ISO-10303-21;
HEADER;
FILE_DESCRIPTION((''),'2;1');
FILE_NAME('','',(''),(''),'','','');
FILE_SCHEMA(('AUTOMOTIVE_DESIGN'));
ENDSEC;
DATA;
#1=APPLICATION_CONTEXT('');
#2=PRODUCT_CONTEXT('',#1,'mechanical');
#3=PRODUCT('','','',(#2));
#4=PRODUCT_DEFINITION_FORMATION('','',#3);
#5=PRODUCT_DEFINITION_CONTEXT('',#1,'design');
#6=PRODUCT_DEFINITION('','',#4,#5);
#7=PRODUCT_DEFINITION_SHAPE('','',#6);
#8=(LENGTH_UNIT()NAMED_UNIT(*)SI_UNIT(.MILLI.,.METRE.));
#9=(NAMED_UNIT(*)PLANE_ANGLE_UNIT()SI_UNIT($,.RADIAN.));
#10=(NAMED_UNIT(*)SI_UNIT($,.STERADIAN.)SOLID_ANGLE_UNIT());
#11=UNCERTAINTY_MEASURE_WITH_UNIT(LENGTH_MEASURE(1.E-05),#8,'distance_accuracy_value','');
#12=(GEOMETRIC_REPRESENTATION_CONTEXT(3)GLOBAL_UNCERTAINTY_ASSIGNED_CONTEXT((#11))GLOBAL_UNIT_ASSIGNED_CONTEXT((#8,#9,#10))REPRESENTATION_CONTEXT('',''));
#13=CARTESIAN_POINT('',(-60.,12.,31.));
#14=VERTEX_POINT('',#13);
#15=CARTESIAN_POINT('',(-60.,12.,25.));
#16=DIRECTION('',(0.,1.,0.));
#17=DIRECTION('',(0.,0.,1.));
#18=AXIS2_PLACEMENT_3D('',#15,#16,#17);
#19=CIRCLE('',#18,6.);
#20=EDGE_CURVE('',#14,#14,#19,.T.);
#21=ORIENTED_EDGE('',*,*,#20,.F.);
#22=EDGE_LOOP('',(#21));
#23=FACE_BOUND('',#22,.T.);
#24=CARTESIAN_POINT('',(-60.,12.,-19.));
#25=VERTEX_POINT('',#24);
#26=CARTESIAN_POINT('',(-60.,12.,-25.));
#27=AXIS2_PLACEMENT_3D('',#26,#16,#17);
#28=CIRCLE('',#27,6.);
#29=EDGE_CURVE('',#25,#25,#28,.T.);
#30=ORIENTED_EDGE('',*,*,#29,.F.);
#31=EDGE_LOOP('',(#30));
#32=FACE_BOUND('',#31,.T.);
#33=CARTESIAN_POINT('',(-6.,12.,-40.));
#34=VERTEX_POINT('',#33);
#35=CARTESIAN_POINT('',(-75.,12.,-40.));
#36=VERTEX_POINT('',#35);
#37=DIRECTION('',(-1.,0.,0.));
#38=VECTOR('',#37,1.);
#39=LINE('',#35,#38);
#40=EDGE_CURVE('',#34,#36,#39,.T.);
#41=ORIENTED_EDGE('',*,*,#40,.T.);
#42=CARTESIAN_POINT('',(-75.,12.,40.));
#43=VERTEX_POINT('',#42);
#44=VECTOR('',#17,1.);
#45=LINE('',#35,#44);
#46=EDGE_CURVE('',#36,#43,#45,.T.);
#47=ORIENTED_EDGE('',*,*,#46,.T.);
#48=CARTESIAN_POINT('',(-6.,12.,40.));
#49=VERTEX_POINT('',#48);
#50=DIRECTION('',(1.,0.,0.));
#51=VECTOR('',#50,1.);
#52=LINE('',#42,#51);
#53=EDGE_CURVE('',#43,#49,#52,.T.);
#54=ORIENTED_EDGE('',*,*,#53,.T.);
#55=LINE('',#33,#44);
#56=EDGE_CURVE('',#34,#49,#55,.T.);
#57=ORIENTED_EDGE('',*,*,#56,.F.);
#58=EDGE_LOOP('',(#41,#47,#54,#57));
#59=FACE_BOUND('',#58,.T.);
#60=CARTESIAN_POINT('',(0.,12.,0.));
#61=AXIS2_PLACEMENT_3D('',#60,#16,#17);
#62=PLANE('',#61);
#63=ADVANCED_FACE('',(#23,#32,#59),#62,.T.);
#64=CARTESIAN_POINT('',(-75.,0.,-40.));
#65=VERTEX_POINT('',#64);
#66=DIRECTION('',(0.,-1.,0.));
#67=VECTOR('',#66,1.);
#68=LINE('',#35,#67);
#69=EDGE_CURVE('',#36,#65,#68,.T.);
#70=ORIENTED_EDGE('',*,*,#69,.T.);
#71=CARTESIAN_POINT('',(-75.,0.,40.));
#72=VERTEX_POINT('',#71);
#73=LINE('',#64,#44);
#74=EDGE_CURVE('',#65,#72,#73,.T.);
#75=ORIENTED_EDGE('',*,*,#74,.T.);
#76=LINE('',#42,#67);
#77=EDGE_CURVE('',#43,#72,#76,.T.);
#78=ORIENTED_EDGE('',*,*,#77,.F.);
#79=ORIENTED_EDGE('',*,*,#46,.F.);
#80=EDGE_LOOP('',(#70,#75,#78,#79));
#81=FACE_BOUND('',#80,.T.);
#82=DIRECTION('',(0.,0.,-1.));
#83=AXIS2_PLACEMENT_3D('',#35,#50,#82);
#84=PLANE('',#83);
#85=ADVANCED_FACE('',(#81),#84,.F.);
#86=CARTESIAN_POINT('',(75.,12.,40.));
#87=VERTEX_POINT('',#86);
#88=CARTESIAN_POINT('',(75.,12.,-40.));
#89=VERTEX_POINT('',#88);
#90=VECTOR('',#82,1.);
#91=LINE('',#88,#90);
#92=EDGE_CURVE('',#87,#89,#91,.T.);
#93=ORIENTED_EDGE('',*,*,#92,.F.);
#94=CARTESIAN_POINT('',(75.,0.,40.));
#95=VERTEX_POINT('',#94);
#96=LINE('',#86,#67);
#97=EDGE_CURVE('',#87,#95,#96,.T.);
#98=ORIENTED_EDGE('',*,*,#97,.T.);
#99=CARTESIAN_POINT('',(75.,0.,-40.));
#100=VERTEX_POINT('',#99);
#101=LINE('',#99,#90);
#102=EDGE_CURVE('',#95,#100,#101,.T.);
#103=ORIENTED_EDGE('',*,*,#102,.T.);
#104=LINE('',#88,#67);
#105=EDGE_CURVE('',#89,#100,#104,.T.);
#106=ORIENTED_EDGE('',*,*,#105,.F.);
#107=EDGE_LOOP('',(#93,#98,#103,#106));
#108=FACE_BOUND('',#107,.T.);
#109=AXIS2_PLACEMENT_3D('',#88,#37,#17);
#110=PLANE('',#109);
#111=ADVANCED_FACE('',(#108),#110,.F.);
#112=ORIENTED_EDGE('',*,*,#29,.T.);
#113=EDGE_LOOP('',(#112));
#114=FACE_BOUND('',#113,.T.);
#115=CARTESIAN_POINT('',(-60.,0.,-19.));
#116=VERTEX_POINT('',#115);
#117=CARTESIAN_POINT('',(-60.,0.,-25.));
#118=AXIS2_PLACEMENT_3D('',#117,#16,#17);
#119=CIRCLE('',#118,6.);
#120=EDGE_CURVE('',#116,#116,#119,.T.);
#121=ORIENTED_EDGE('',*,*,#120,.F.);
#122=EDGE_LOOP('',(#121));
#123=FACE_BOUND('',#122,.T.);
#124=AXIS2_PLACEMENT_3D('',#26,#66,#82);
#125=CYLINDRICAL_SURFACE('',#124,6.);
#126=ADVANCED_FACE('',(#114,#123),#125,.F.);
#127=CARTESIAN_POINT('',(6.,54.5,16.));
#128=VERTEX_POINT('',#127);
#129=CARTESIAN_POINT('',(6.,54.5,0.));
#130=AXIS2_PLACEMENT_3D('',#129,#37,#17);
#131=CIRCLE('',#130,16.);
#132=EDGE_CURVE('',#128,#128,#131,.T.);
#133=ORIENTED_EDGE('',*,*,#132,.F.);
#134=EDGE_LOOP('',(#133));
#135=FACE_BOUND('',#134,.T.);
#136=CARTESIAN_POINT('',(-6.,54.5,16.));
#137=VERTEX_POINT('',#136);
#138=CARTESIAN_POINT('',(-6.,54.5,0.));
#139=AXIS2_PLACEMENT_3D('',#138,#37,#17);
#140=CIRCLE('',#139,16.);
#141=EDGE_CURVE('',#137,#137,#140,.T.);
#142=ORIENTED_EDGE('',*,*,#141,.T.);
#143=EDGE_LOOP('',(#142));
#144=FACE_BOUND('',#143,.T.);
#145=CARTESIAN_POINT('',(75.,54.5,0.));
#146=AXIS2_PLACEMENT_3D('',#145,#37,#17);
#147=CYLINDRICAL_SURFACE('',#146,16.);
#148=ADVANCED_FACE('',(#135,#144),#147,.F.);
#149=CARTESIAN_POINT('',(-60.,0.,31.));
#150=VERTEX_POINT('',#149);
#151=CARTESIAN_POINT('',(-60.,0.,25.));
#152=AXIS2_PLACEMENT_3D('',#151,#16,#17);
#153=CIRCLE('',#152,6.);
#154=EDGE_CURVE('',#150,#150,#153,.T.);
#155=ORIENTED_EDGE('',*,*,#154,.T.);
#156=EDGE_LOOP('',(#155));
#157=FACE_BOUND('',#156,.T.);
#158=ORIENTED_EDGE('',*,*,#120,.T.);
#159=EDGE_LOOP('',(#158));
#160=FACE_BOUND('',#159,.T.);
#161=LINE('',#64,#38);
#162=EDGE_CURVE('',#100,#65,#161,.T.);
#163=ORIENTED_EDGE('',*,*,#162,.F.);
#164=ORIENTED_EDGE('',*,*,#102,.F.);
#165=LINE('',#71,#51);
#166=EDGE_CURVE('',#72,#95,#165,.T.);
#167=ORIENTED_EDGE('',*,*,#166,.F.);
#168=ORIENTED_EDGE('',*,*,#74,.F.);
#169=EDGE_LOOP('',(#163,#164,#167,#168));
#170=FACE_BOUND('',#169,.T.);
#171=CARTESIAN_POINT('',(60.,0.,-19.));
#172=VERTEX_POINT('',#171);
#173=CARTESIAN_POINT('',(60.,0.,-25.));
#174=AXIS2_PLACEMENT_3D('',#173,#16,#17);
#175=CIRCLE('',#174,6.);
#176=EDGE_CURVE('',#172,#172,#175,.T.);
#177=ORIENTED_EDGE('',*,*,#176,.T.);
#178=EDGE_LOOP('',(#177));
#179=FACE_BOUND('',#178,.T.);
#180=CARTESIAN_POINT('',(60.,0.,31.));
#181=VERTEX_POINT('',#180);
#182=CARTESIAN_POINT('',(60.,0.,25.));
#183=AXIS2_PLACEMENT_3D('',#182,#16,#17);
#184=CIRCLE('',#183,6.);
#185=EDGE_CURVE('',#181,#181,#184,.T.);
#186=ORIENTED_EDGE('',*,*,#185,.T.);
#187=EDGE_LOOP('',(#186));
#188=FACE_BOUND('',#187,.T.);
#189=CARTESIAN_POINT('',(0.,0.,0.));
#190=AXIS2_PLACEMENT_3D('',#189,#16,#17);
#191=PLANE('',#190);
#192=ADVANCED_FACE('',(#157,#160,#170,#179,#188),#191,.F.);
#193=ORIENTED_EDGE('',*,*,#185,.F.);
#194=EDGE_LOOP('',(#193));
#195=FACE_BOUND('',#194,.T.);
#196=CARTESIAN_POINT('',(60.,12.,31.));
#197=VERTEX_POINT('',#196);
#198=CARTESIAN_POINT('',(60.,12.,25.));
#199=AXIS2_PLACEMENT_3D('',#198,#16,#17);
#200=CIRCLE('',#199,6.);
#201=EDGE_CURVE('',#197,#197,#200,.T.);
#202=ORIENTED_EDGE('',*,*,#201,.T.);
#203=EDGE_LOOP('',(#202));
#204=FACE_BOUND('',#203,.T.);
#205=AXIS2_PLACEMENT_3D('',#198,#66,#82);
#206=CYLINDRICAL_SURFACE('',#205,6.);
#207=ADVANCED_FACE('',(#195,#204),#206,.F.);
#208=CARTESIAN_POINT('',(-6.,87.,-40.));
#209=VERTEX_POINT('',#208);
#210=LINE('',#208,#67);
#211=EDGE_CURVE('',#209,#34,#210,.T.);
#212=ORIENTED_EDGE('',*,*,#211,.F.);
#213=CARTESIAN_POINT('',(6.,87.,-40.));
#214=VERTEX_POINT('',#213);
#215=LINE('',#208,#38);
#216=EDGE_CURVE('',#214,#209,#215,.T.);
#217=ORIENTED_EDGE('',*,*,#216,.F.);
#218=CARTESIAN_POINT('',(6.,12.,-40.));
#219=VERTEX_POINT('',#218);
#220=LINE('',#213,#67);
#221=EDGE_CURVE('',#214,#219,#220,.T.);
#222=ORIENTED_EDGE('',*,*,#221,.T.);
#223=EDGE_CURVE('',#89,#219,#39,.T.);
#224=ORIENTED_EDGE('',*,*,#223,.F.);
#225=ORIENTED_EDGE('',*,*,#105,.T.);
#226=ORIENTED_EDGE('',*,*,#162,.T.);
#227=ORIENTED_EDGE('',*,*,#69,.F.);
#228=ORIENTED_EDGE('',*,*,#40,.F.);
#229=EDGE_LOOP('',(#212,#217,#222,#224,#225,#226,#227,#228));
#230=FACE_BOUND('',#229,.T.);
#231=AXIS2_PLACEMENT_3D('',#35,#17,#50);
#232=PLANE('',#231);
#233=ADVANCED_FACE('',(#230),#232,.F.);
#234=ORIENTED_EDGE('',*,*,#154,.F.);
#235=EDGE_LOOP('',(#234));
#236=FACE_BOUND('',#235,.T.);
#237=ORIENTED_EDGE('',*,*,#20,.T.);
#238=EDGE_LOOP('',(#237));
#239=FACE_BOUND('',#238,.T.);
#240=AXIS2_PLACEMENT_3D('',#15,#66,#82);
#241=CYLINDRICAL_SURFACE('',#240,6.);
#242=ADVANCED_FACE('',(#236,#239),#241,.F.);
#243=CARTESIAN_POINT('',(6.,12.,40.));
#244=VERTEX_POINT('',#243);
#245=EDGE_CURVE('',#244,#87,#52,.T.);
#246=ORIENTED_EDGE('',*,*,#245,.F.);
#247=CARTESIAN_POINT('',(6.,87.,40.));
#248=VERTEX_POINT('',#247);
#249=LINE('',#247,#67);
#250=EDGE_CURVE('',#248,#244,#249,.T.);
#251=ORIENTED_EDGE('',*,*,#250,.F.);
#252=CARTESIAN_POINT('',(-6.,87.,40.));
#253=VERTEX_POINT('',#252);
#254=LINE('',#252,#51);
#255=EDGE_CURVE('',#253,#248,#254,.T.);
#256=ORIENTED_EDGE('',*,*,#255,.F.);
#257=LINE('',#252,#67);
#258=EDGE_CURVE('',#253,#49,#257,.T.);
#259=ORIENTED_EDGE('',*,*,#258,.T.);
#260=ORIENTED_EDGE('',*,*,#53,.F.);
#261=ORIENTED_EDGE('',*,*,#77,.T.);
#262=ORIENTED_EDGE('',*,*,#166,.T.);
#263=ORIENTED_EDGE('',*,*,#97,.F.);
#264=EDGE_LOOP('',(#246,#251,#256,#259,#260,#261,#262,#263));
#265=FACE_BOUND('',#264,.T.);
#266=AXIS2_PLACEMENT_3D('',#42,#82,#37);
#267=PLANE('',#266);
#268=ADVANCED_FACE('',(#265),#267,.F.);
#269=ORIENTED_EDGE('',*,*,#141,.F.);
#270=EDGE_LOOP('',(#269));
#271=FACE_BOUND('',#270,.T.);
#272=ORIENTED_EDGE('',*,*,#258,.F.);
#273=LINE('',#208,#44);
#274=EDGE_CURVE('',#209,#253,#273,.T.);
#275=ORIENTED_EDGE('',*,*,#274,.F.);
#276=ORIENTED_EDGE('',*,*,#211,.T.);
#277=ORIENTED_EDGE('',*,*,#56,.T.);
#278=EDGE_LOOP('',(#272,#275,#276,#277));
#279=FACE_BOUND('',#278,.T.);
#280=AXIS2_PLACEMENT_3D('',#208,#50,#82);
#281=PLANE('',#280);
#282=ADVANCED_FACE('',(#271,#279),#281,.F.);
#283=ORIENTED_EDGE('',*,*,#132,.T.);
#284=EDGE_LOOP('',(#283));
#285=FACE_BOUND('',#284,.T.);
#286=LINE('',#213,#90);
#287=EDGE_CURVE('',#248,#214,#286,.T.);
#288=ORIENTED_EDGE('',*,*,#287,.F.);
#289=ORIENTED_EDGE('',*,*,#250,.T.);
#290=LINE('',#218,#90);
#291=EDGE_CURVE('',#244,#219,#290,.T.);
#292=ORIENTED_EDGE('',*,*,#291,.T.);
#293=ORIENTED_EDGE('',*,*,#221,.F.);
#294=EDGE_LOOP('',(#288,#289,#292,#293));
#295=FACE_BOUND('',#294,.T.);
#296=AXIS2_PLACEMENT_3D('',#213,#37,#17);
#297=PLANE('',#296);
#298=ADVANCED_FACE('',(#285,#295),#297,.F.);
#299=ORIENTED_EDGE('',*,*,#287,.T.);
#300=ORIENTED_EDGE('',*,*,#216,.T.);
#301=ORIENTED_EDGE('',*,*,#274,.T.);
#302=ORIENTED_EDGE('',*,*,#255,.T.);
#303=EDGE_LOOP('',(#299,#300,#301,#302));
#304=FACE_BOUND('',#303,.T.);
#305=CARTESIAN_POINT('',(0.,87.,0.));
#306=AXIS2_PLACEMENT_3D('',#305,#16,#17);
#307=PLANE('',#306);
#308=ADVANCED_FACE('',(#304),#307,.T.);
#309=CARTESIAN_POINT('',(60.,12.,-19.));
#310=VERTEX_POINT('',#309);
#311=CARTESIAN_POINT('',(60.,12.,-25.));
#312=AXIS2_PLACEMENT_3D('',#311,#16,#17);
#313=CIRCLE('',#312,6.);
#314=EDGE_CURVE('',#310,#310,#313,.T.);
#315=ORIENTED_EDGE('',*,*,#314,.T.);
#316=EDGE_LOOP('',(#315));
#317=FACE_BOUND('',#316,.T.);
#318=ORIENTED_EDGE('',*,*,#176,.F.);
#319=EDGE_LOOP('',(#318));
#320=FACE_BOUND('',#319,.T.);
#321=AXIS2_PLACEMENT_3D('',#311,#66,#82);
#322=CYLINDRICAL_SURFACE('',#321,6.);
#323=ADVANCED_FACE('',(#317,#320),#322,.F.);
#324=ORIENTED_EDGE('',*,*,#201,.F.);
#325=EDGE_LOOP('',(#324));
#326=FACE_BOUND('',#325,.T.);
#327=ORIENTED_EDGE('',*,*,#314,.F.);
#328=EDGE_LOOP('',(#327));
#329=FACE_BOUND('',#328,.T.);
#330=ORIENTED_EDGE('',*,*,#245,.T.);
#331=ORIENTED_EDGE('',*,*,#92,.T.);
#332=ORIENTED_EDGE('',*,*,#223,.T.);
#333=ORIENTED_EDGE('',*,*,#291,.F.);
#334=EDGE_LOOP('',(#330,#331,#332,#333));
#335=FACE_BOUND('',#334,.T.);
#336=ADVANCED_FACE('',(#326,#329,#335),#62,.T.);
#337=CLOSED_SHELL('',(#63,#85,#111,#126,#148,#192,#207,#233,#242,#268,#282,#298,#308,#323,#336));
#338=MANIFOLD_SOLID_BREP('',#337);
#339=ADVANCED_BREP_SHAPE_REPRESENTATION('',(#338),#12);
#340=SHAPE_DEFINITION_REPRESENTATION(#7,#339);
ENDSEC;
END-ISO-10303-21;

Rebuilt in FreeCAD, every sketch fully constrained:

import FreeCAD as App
import Part
import Sketcher

V = App.Vector


def add_polygon(sketch, points):
    """Adds a closed chain of lines whose ends are joined by coincident constraints."""
    first, n = sketch.GeometryCount, len(points)
    for a, b in zip(points, points[1:] + points[:1]):
        sketch.addGeometry(Part.LineSegment(App.Vector(*a, 0), App.Vector(*b, 0)), False)
    for i in range(n):
        sketch.addConstraint(Sketcher.Constraint("Coincident", first + i, 2, first + (i + 1) % n, 1))

doc = App.newDocument("Part")
params = doc.addObject("Spreadsheet::Sheet", "Params")
for row, (alias, value) in enumerate([
    ("sketch1_diameter", "12 mm"),
    ("sketch1_width", "150 mm"),
    ("sketch1_height", "80 mm"),
    ("pad1_length", "12 mm"),
    ("sketch2_width", "12 mm"),
    ("sketch2_height", "80 mm"),
    ("pad2_length", "75 mm"),
    ("sketch3_diameter", "32 mm"),
], start=1):
    params.set(f"A{row}", alias)
    params.set(f"B{row}", "=" + value)
    params.setAlias(f"B{row}", alias)

body = doc.addObject("PartDesign::Body", "Body")

sketch1 = doc.addObject("Sketcher::SketchObject", "Sketch")
body.addObject(sketch1)
sketch1.AttachmentSupport = (doc.XZ_Plane, [""])
sketch1.MapMode = "FlatFace"
add_polygon(sketch1, [(-75, -40), (-75, 40), (75, 40), (75, -40)])
sketch1.addGeometry(Part.Circle(V(-60, 25, 0), V(0, 0, 1), 6), False)
sketch1.addGeometry(Part.Circle(V(60, 25, 0), V(0, 0, 1), 6), False)
sketch1.addGeometry(Part.Circle(V(-60, -25, 0), V(0, 0, 1), 6), False)
sketch1.addGeometry(Part.Circle(V(60, -25, 0), V(0, 0, 1), 6), False)
sketch1.addConstraint([
    Sketcher.Constraint("Vertical", 0),
    Sketcher.Constraint("Horizontal", 1),
    Sketcher.Constraint("Vertical", 2),
    Sketcher.Constraint("Horizontal", 3),
    Sketcher.Constraint("Equal", 4, 5),
    Sketcher.Constraint("Equal", 5, 6),
    Sketcher.Constraint("Equal", 6, 7),
    Sketcher.Constraint("Symmetric", 5, 3, 6, 3, -1, 1),
    Sketcher.Constraint("Symmetric", 4, 3, 7, 3, -1, 1),
    Sketcher.Constraint("Symmetric", 0, 2, 2, 2, -1, 1),
    Sketcher.Constraint("Symmetric", 4, 3, 5, 3, -2),
    Sketcher.Constraint("Diameter", 4, 12.0),
    Sketcher.Constraint("DistanceX", 1, 1, 1, 2, 150.0),
    Sketcher.Constraint("DistanceY", 0, 1, 0, 2, 80.0),
    Sketcher.Constraint("DistanceX", 4, 3, -1, 1, 60.0),
    Sketcher.Constraint("DistanceY", -1, 1, 4, 3, 25.0),
])
sketch1.setExpression("Constraints[15]", "Params.sketch1_diameter")
sketch1.setExpression("Constraints[16]", "Params.sketch1_width")
sketch1.setExpression("Constraints[17]", "Params.sketch1_height")
pad1 = doc.addObject("PartDesign::Pad", "Pad")
body.addObject(pad1)
pad1.Profile = sketch1
pad1.setExpression("Length", "Params.pad1_length")
pad1.Reversed = True

sketch2 = doc.addObject("Sketcher::SketchObject", "Sketch001")
body.addObject(sketch2)
sketch2.AttachmentSupport = (doc.XZ_Plane, [""])
sketch2.MapMode = "FlatFace"
sketch2.AttachmentOffset = App.Placement(V(0, 0, -12), App.Rotation())
add_polygon(sketch2, [(-6, -40), (-6, 40), (6, 40), (6, -40)])
sketch2.addConstraint([
    Sketcher.Constraint("Vertical", 0),
    Sketcher.Constraint("Horizontal", 1),
    Sketcher.Constraint("Vertical", 2),
    Sketcher.Constraint("Horizontal", 3),
    Sketcher.Constraint("Symmetric", 0, 2, 2, 2, -1, 1),
    Sketcher.Constraint("DistanceX", 1, 1, 1, 2, 12.0),
    Sketcher.Constraint("DistanceY", 0, 1, 0, 2, 80.0),
])
sketch2.setExpression("Constraints[9]", "Params.sketch2_width")
sketch2.setExpression("Constraints[10]", "Params.sketch2_height")
pad2 = doc.addObject("PartDesign::Pad", "Pad001")
body.addObject(pad2)
pad2.Profile = sketch2
pad2.setExpression("Length", "Params.pad2_length")
pad2.Reversed = True

sketch3 = doc.addObject("Sketcher::SketchObject", "Sketch002")
body.addObject(sketch3)
sketch3.AttachmentSupport = (doc.YZ_Plane, [""])
sketch3.MapMode = "FlatFace"
sketch3.AttachmentOffset = App.Placement(V(0, 0, -6), App.Rotation())
sketch3.addGeometry(Part.Circle(V(54, 0, 0), V(0, 0, 1), 16), False)
sketch3.addConstraint([
    Sketcher.Constraint("PointOnObject", 0, 3, -1),
    Sketcher.Constraint("Diameter", 0, 32.0),
    Sketcher.Constraint("DistanceX", -1, 1, 0, 3, 54.5),
])
sketch3.setExpression("Constraints[1]", "Params.sketch3_diameter")
pocket1 = doc.addObject("PartDesign::Pocket", "Pocket")
body.addObject(pocket1)
pocket1.Profile = sketch3
pocket1.Type = "ThroughAll"
pocket1.Reversed = True

doc.recompute()
